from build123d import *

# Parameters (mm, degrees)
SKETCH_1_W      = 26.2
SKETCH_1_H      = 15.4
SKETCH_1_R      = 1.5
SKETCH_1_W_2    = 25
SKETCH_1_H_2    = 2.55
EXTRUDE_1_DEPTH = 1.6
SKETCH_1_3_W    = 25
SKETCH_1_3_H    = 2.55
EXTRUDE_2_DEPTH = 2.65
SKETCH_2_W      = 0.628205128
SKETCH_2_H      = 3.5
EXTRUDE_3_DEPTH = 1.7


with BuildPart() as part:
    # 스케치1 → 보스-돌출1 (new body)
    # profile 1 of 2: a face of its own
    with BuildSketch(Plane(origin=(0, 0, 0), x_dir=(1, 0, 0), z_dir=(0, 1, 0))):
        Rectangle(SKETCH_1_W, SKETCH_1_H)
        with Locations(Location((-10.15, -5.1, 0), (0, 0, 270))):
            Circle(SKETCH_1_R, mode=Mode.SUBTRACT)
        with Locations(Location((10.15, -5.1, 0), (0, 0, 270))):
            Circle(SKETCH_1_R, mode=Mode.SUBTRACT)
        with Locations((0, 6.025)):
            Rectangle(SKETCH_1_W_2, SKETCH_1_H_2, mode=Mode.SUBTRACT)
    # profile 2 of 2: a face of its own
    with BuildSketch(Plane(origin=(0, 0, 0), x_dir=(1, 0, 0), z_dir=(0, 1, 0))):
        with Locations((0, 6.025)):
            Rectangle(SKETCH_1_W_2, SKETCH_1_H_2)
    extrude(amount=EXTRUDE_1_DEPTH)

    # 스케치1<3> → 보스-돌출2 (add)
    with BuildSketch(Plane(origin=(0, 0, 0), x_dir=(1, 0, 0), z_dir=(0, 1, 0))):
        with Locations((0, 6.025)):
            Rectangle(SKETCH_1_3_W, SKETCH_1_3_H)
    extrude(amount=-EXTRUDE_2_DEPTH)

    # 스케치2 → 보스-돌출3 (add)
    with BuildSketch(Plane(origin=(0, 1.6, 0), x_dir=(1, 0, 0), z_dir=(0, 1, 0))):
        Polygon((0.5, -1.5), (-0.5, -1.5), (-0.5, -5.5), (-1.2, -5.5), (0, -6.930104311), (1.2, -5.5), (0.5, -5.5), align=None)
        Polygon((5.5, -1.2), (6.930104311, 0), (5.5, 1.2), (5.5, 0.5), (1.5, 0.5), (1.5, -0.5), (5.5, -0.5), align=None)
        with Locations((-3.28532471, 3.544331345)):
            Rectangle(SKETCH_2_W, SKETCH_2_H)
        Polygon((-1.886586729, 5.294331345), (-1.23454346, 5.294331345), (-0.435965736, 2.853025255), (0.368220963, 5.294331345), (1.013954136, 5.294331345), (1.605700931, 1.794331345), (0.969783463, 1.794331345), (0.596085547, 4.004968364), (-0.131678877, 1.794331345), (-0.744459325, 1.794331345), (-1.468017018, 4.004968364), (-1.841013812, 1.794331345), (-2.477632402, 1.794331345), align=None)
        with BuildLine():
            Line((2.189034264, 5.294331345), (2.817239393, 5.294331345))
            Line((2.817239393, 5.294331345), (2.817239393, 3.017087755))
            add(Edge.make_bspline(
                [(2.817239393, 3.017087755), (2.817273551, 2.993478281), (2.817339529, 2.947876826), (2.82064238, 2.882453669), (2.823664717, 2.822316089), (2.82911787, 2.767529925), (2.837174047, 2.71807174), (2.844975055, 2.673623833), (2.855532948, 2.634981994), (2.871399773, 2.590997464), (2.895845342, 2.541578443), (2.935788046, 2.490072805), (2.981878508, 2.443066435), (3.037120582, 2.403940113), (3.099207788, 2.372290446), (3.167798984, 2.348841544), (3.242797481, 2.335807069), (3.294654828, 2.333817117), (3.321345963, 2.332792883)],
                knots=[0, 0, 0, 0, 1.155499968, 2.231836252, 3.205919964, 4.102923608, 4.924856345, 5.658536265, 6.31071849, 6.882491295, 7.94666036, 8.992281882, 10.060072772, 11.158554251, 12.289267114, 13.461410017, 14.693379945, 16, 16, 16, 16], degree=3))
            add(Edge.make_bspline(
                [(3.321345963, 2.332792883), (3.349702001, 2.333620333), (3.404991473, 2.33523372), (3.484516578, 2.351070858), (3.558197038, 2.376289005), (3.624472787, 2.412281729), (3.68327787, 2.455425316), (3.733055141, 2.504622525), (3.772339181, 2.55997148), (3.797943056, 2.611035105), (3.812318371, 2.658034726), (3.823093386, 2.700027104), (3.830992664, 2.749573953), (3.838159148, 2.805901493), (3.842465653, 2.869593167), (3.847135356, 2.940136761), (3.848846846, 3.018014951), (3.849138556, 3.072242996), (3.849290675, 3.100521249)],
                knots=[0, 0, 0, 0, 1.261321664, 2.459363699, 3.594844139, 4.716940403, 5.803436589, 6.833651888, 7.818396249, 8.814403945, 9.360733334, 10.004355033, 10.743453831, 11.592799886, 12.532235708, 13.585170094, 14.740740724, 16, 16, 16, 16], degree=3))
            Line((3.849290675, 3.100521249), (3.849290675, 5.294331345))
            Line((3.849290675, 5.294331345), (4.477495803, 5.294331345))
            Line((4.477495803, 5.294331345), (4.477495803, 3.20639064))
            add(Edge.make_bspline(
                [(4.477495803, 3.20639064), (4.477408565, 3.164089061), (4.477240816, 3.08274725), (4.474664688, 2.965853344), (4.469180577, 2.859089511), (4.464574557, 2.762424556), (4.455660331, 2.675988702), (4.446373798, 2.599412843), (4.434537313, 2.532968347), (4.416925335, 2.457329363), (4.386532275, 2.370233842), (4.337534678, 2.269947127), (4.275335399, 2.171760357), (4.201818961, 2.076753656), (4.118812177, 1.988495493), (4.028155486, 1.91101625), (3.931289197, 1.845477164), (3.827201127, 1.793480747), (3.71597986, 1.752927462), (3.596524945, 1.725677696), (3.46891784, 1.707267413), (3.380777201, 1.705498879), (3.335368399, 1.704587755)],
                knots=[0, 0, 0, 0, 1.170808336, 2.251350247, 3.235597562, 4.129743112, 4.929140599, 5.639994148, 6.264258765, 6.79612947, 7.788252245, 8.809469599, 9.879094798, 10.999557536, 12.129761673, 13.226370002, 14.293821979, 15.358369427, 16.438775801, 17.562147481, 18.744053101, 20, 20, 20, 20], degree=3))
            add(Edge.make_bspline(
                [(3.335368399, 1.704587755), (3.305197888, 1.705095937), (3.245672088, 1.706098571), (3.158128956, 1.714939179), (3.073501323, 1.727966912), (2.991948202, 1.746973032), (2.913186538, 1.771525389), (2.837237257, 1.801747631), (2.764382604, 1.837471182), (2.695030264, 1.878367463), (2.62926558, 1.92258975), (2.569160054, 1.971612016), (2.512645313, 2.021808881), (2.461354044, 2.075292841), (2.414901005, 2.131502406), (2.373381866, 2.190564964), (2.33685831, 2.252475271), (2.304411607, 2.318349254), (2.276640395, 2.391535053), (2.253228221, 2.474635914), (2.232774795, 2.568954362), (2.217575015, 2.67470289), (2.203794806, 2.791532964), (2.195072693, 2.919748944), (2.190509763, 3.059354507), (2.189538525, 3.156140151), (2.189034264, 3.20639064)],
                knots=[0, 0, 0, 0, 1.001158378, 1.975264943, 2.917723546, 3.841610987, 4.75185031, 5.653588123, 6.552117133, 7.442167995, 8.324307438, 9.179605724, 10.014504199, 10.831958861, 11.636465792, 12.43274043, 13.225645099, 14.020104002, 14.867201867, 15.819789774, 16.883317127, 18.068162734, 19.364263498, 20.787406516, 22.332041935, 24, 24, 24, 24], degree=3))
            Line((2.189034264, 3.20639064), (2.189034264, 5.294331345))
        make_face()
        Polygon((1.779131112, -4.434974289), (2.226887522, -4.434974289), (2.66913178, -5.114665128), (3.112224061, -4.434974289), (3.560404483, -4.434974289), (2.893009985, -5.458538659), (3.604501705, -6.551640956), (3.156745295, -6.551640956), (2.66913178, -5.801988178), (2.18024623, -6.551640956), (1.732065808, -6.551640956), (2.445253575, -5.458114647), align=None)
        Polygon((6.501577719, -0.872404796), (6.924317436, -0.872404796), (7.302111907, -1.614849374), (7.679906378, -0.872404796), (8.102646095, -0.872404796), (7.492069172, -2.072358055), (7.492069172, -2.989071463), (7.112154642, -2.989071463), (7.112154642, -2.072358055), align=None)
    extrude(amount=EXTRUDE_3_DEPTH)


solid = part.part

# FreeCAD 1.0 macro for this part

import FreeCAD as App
import Part
import Sketcher

V = App.Vector
Q = App.Units.Quantity


def add_polygon(sketch, points):
    """Adds a closed chain of lines whose ends are joined by coincident constraints."""
    first, n = sketch.GeometryCount, len(points)
    for a, b in zip(points, points[1:] + points[:1]):
        sketch.addGeometry(Part.LineSegment(App.Vector(*a, 0), App.Vector(*b, 0)), False)
    for i in range(n):
        sketch.addConstraint(Sketcher.Constraint("Coincident", first + i, 2, first + (i + 1) % n, 1))

doc = App.newDocument("Part")
body = doc.addObject("PartDesign::Body", "Body")

# Sketch on XZ plane
sketch1 = body.newObject("Sketcher::SketchObject", "Sketch")
sketch1.AttachmentSupport = (doc.getObject("XZ_Plane"), [""])
sketch1.MapMode = "FlatFace"
add_polygon(sketch1, [(-13.1, -7.7), (-13.1, 7.7), (13.1, 7.7), (13.1, -7.7)])  # lines 0-3
sketch1.addGeometry(Part.Circle(V(-10.2, 5.1, 0), V(0, 0, 1), 1.5), False)  # 4
sketch1.addGeometry(Part.Circle(V(10.2, 5.1, 0), V(0, 0, 1), 1.5), False)  # 5
sketch1.addConstraint(Sketcher.Constraint("Vertical", 0))
sketch1.addConstraint(Sketcher.Constraint("Horizontal", 1))
sketch1.addConstraint(Sketcher.Constraint("Vertical", 2))
sketch1.addConstraint(Sketcher.Constraint("Horizontal", 3))
sketch1.addConstraint(Sketcher.Constraint("Equal", 4, 5))
sketch1.addConstraint(Sketcher.Constraint("Symmetric", 0, 2, 2, 2, -1, 1))
sketch1.addConstraint(Sketcher.Constraint("Symmetric", 4, 3, 5, 3, -2))
sketch1.addConstraint(Sketcher.Constraint("Diameter", 4, 3.0))
sketch1.addConstraint(Sketcher.Constraint("DistanceX", 1, 1, 1, 2, 26.2))
sketch1.addConstraint(Sketcher.Constraint("DistanceY", 0, 1, 0, 2, 15.4))
sketch1.addConstraint(Sketcher.Constraint("DistanceY", -1, 1, 4, 3, 5.1))
sketch1.addConstraint(Sketcher.Constraint("DistanceX", 4, 3, 5, 3, 20.3))
pad1 = body.newObject("PartDesign::Pad", "Pad")
pad1.Profile = sketch1
pad1.Length = 1.6
pad1.Reversed = True

# Sketch on XZ plane
sketch2 = body.newObject("Sketcher::SketchObject", "Sketch001")
sketch2.AttachmentSupport = (doc.getObject("XZ_Plane"), [""])
sketch2.MapMode = "FlatFace"
add_polygon(sketch2, [(-12.5, -7.3), (-12.5, -4.8), (12.5, -4.8), (12.5, -7.3)])  # lines 0-3
sketch2.addConstraint(Sketcher.Constraint("Vertical", 0))
sketch2.addConstraint(Sketcher.Constraint("Horizontal", 1))
sketch2.addConstraint(Sketcher.Constraint("Vertical", 2))
sketch2.addConstraint(Sketcher.Constraint("Horizontal", 3))
sketch2.addConstraint(Sketcher.Constraint("DistanceX", 1, 1, 1, 2, 25.0))
sketch2.addConstraint(Sketcher.Constraint("DistanceY", 0, 1, 0, 2, 2.55))
sketch2.addConstraint(Sketcher.Constraint("DistanceX", 0, 2, -1, 1, 12.5))
sketch2.addConstraint(Sketcher.Constraint("DistanceY", 2, 2, -1, 1, 7.3))
pad2 = body.newObject("PartDesign::Pad", "Pad001")
pad2.Profile = sketch2
pad2.Length = 2.65

# Sketch on XZ plane
sketch3 = body.newObject("Sketcher::SketchObject", "Sketch002")
sketch3.AttachmentSupport = (doc.getObject("XZ_Plane"), [""])
sketch3.MapMode = "FlatFace"
sketch3.AttachmentOffset = App.Placement(V(0, 0, -1.6), App.Rotation())
add_polygon(sketch3, [(0.5, 1.5), (-0.5, 1.5), (-0.5, 5.5), (-1.2, 5.5), (0, 6.930104), (1.2, 5.5), (0.5, 5.5)])  # lines 0-6
add_polygon(sketch3, [(5.5, 1.2), (6.930104, 0), (5.5, -1.2), (5.5, -0.5), (1.5, -0.5), (1.5, 0.5), (5.5, 0.5)])  # lines 7-13
add_polygon(sketch3, [(-3.599427, -5.294331), (-3.599427, -1.794331), (-2.971222, -1.794331), (-2.971222, -5.294331)])  # lines 14-17
add_polygon(sketch3, [(-1.234543, -5.294331), (-1.886587, -5.294331), (-2.477632, -1.794331), (-1.841014, -1.794331), (-1.468017, -4.004968), (-0.744459, -1.794331), (-0.131679, -1.794331), (0.596086, -4.004968), (0.969783, -1.794331), (1.605701, -1.794331), (1.013954, -5.294331), (0.368221, -5.294331), (-0.435966, -2.853025)])  # lines 18-30
sketch3.addGeometry(Part.LineSegment(V(2.817239, -5.294331, 0), V(2.189034, -5.294331, 0)), False)  # 31
sketch3.addGeometry(Part.LineSegment(V(2.189034, -5.294331, 0), V(2.189034, -3.206391, 0)), False)  # 32
sketch3.addGeometry(Part.BSplineCurve([V(3.335368, -1.704588, 0), V(3.305198, -1.705096, 0), V(3.245672, -1.706099, 0), V(3.158129, -1.714939, 0), V(3.073501, -1.727967, 0), V(2.991948, -1.746973, 0), V(2.913187, -1.771525, 0), V(2.837237, -1.801748, 0), V(2.764383, -1.837471, 0), V(2.69503, -1.878367, 0), V(2.629266, -1.92259, 0), V(2.56916, -1.971612, 0), V(2.512645, -2.021809, 0), V(2.461354, -2.075293, 0), V(2.414901, -2.131502, 0), V(2.373382, -2.190565, 0), V(2.336858, -2.252475, 0), V(2.304412, -2.318349, 0), V(2.27664, -2.391535, 0), V(2.253228, -2.474636, 0), V(2.232775, -2.568954, 0), V(2.217575, -2.674703, 0), V(2.203795, -2.791533, 0), V(2.195073, -2.919749, 0), V(2.19051, -3.059355, 0), V(2.189539, -3.15614, 0), V(2.189034, -3.206391, 0)], [4, 1, 1, 1, 1, 1, 1, 1, 1, 1, 1, 1, 1, 1, 1, 1, 1, 1, 1, 1, 1, 1, 1, 1, 4], [0, 1.001158378, 1.975264943, 2.917723546, 3.841610987, 4.75185031, 5.653588123, 6.552117133, 7.442167995, 8.324307438, 9.179605724, 10.014504199, 10.831958861, 11.636465792, 12.43274043, 13.225645099, 14.020104002, 14.867201867, 15.819789774, 16.883317127, 18.068162734, 19.364263498, 20.787406516, 22.332041935, 24], False, 3, [1, 1, 1, 1, 1, 1, 1, 1, 1, 1, 1, 1, 1, 1, 1, 1, 1, 1, 1, 1, 1, 1, 1, 1, 1, 1, 1], False), False)  # 33
sketch3.addGeometry(Part.BSplineCurve([V(4.477496, -3.206391, 0), V(4.477409, -3.164089, 0), V(4.477241, -3.082747, 0), V(4.474665, -2.965853, 0), V(4.469181, -2.85909, 0), V(4.464575, -2.762425, 0), V(4.45566, -2.675989, 0), V(4.446374, -2.599413, 0), V(4.434537, -2.532968, 0), V(4.416925, -2.457329, 0), V(4.386532, -2.370234, 0), V(4.337535, -2.269947, 0), V(4.275335, -2.17176, 0), V(4.201819, -2.076754, 0), V(4.118812, -1.988495, 0), V(4.028155, -1.911016, 0), V(3.931289, -1.845477, 0), V(3.827201, -1.793481, 0), V(3.71598, -1.752927, 0), V(3.596525, -1.725678, 0), V(3.468918, -1.707267, 0), V(3.380777, -1.705499, 0), V(3.335368, -1.704588, 0)], [4, 1, 1, 1, 1, 1, 1, 1, 1, 1, 1, 1, 1, 1, 1, 1, 1, 1, 1, 1, 4], [0, 1.170808336, 2.251350247, 3.235597562, 4.129743112, 4.929140599, 5.639994148, 6.264258765, 6.79612947, 7.788252245, 8.809469599, 9.879094798, 10.999557536, 12.129761673, 13.226370002, 14.293821979, 15.358369427, 16.438775801, 17.562147481, 18.744053101, 20], False, 3, [1, 1, 1, 1, 1, 1, 1, 1, 1, 1, 1, 1, 1, 1, 1, 1, 1, 1, 1, 1, 1, 1, 1], False), False)  # 34
sketch3.addGeometry(Part.LineSegment(V(4.477496, -3.206391, 0), V(4.477496, -5.294331, 0)), False)  # 35
sketch3.addGeometry(Part.LineSegment(V(4.477496, -5.294331, 0), V(3.849291, -5.294331, 0)), False)  # 36
sketch3.addGeometry(Part.LineSegment(V(3.849291, -5.294331, 0), V(3.849291, -3.100521, 0)), False)  # 37
sketch3.addGeometry(Part.BSplineCurve([V(3.321346, -2.332793, 0), V(3.349702, -2.33362, 0), V(3.404991, -2.335234, 0), V(3.484517, -2.351071, 0), V(3.558197, -2.376289, 0), V(3.624473, -2.412282, 0), V(3.683278, -2.455425, 0), V(3.733055, -2.504623, 0), V(3.772339, -2.559971, 0), V(3.797943, -2.611035, 0), V(3.812318, -2.658035, 0), V(3.823093, -2.700027, 0), V(3.830993, -2.749574, 0), V(3.838159, -2.805901, 0), V(3.842466, -2.869593, 0), V(3.847135, -2.940137, 0), V(3.848847, -3.018015, 0), V(3.849139, -3.072243, 0), V(3.849291, -3.100521, 0)], [4, 1, 1, 1, 1, 1, 1, 1, 1, 1, 1, 1, 1, 1, 1, 1, 4], [0, 1.261321664, 2.459363699, 3.594844139, 4.716940403, 5.803436589, 6.833651888, 7.818396249, 8.814403945, 9.360733334, 10.004355033, 10.743453831, 11.592799886, 12.532235708, 13.585170094, 14.740740724, 16], False, 3, [1, 1, 1, 1, 1, 1, 1, 1, 1, 1, 1, 1, 1, 1, 1, 1, 1, 1, 1], False), False)  # 38
sketch3.addGeometry(Part.BSplineCurve([V(2.817239, -3.017088, 0), V(2.817274, -2.993478, 0), V(2.81734, -2.947877, 0), V(2.820642, -2.882454, 0), V(2.823665, -2.822316, 0), V(2.829118, -2.76753, 0), V(2.837174, -2.718072, 0), V(2.844975, -2.673624, 0), V(2.855533, -2.634982, 0), V(2.8714, -2.590997, 0), V(2.895845, -2.541578, 0), V(2.935788, -2.490073, 0), V(2.981879, -2.443066, 0), V(3.037121, -2.40394, 0), V(3.099208, -2.37229, 0), V(3.167799, -2.348842, 0), V(3.242797, -2.335807, 0), V(3.294655, -2.333817, 0), V(3.321346, -2.332793, 0)], [4, 1, 1, 1, 1, 1, 1, 1, 1, 1, 1, 1, 1, 1, 1, 1, 4], [0, 1.155499968, 2.231836252, 3.205919964, 4.102923608, 4.924856345, 5.658536265, 6.31071849, 6.882491295, 7.94666036, 8.992281882, 10.060072772, 11.158554251, 12.289267114, 13.461410017, 14.693379945, 16], False, 3, [1, 1, 1, 1, 1, 1, 1, 1, 1, 1, 1, 1, 1, 1, 1, 1, 1, 1, 1], False), False)  # 39
sketch3.addGeometry(Part.LineSegment(V(2.817239, -3.017088, 0), V(2.817239, -5.294331, 0)), False)  # 40
add_polygon(sketch3, [(2.226888, 4.434974), (1.779131, 4.434974), (2.445254, 5.458115), (1.732066, 6.551641), (2.180246, 6.551641), (2.669132, 5.801988), (3.156745, 6.551641), (3.604502, 6.551641), (2.89301, 5.458539), (3.560404, 4.434974), (3.112224, 4.434974), (2.669132, 5.114665)])  # lines 41-52
add_polygon(sketch3, [(6.924317, 0.872405), (6.501578, 0.872405), (7.112155, 2.072358), (7.112155, 2.989071), (7.492069, 2.989071), (7.492069, 2.072358), (8.102646, 0.872405), (7.679906, 0.872405), (7.302112, 1.614849)])  # lines 53-61
sketch3.addConstraint(Sketcher.Constraint("Block", 33))
sketch3.addConstraint(Sketcher.Constraint("Block", 34))
sketch3.addConstraint(Sketcher.Constraint("Block", 38))
sketch3.addConstraint(Sketcher.Constraint("Block", 39))
sketch3.addConstraint(Sketcher.Constraint("Coincident", 31, 2, 32, 1))
sketch3.addConstraint(Sketcher.Constraint("Coincident", 32, 2, 33, 2))
sketch3.addConstraint(Sketcher.Constraint("Coincident", 34, 1, 35, 1))
sketch3.addConstraint(Sketcher.Constraint("Coincident", 35, 2, 36, 1))
sketch3.addConstraint(Sketcher.Constraint("Coincident", 36, 2, 37, 1))
sketch3.addConstraint(Sketcher.Constraint("Coincident", 37, 2, 38, 2))
sketch3.addConstraint(Sketcher.Constraint("Coincident", 39, 1, 40, 1))
sketch3.addConstraint(Sketcher.Constraint("Coincident", 40, 2, 31, 1))
sketch3.addConstraint(Sketcher.Constraint("Horizontal", 0))
sketch3.addConstraint(Sketcher.Constraint("Vertical", 1))
sketch3.addConstraint(Sketcher.Constraint("Horizontal", 2))
sketch3.addConstraint(Sketcher.Constraint("Horizontal", 5))
sketch3.addConstraint(Sketcher.Constraint("Vertical", 6))
sketch3.addConstraint(Sketcher.Constraint("Vertical", 9))
sketch3.addConstraint(Sketcher.Constraint("Horizontal", 10))
sketch3.addConstraint(Sketcher.Constraint("Vertical", 11))
sketch3.addConstraint(Sketcher.Constraint("Horizontal", 12))
sketch3.addConstraint(Sketcher.Constraint("Vertical", 13))
sketch3.addConstraint(Sketcher.Constraint("Vertical", 14))
sketch3.addConstraint(Sketcher.Constraint("Horizontal", 15))
sketch3.addConstraint(Sketcher.Constraint("Vertical", 16))
sketch3.addConstraint(Sketcher.Constraint("Horizontal", 17))
sketch3.addConstraint(Sketcher.Constraint("Horizontal", 18))
sketch3.addConstraint(Sketcher.Constraint("Horizontal", 20))
sketch3.addConstraint(Sketcher.Constraint("Horizontal", 23))
sketch3.addConstraint(Sketcher.Constraint("Horizontal", 26))
sketch3.addConstraint(Sketcher.Constraint("Horizontal", 28))
sketch3.addConstraint(Sketcher.Constraint("Horizontal", 31))
sketch3.addConstraint(Sketcher.Constraint("Vertical", 32))
sketch3.addConstraint(Sketcher.Constraint("Vertical", 35))
sketch3.addConstraint(Sketcher.Constraint("Horizontal", 36))
sketch3.addConstraint(Sketcher.Constraint("Vertical", 37))
sketch3.addConstraint(Sketcher.Constraint("Vertical", 40))
sketch3.addConstraint(Sketcher.Constraint("Horizontal", 41))
sketch3.addConstraint(Sketcher.Constraint("Horizontal", 44))
sketch3.addConstraint(Sketcher.Constraint("Horizontal", 47))
sketch3.addConstraint(Sketcher.Constraint("Horizontal", 50))
sketch3.addConstraint(Sketcher.Constraint("Horizontal", 53))
sketch3.addConstraint(Sketcher.Constraint("Vertical", 55))
sketch3.addConstraint(Sketcher.Constraint("Horizontal", 56))
sketch3.addConstraint(Sketcher.Constraint("Vertical", 57))
sketch3.addConstraint(Sketcher.Constraint("Horizontal", 59))
sketch3.addConstraint(Sketcher.Constraint("Symmetric", 2, 2, 4, 2, -2))
sketch3.addConstraint(Sketcher.Constraint("Symmetric", 9, 2, 12, 2, -1))
sketch3.addConstraint(Sketcher.Constraint("PointOnObject", 3, 2, -2))
sketch3.addConstraint(Sketcher.Constraint("PointOnObject", 7, 2, -1))
sketch3.addConstraint(Sketcher.Constraint("Perpendicular", 3, 7))
sketch3.addConstraint(Sketcher.Constraint("Perpendicular", 4, 8))
sketch3.addConstraint(Sketcher.Constraint("Horizontal", 17, 2, 18, 2))
sketch3.addConstraint(Sketcher.Constraint("Horizontal", 15, 2, 19, 2))
sketch3.addConstraint(Sketcher.Constraint("Horizontal", 20, 2, 22, 2))
sketch3.addConstraint(Sketcher.Constraint("Horizontal", 21, 2, 24, 2))
sketch3.addConstraint(Sketcher.Constraint("Horizontal", 23, 2, 25, 2))
sketch3.addConstraint(Sketcher.Constraint("Horizontal", 18, 2, 27, 2))
sketch3.addConstraint(Sketcher.Constraint("Horizontal", 30, 2, 31, 2))
sketch3.addConstraint(Sketcher.Constraint("Horizontal", 31, 2, 35, 2))
sketch3.addConstraint(Sketcher.Constraint("Horizontal", 44, 2, 46, 2))
sketch3.addConstraint(Sketcher.Constraint("Horizontal", 41, 2, 49, 2))
sketch3.addConstraint(Sketcher.Constraint("Horizontal", 54, 2, 57, 2))
sketch3.addConstraint(Sketcher.Constraint("Horizontal", 53, 2, 58, 2))
sketch3.addConstraint(Sketcher.Constraint("Vertical", 45, 2, 51, 2))
sketch3.addConstraint(Sketcher.Constraint("Equal", 2, 5))
sketch3.addConstraint(Sketcher.Constraint("Equal", 17, 31))
sketch3.addConstraint(Sketcher.Constraint("Equal", 41, 47))
sketch3.addConstraint(Sketcher.Constraint("Equal", 44, 50))
sketch3.addConstraint(Sketcher.Constraint("Equal", 53, 59))
sketch3.addConstraint(Sketcher.Constraint("Equal", 12, 1))
sketch3.addConstraint(Sketcher.Constraint("Equal", 5, 9))
sketch3.addConstraint(Sketcher.Constraint("Equal", 0, 11))
sketch3.addConstraint(Sketcher.Constraint("Equal", 54, 58))
sketch3.addConstraint(Sketcher.Constraint("Equal", 60, 61))
sketch3.addConstraint(Sketcher.Constraint("DistanceX", 0, 2, 0, 1, 1.0))
sketch3.addConstraint(Sketcher.Constraint("DistanceX", 10, 2, 10, 1, 4.0))
sketch3.addConstraint(Sketcher.Constraint("Angle", 3, Q("50 deg")))
sketch3.addConstraint(Sketcher.Constraint("DistanceX", 2, 2, 2, 1, 0.7))
sketch3.addConstraint(Sketcher.Constraint("DistanceY", 14, 1, 14, 2, 3.5))
sketch3.addConstraint(Sketcher.Constraint("DistanceX", 6, 2, 8, 2, 5.0))
sketch3.addConstraint(Sketcher.Constraint("DistanceY", 9, 2, 6, 2, 2.0))
sketch3.addConstraint(Sketcher.Constraint("DistanceX", 41, 2, 45, 2, 0.890001))
sketch3.addConstraint(Sketcher.Constraint("Distance", 25, 2.242))
sketch3.addConstraint(Sketcher.Constraint("Distance", 30, 2.568599))
sketch3.addConstraint(Sketcher.Constraint("Distance", 52, 0.8109))
sketch3.addConstraint(Sketcher.Constraint("DistanceX", 20, 1, 20, 2, 0.636619))
sketch3.addConstraint(Sketcher.Constraint("DistanceX", 23, 1, 23, 2, 0.61278))
sketch3.addConstraint(Sketcher.Constraint("DistanceX", 44, 1, 44, 2, 0.44818))
sketch3.addConstraint(Sketcher.Constraint("DistanceX", 53, 2, 53, 1, 0.42274))
sketch3.addConstraint(Sketcher.Constraint("DistanceY", 32, 1, 32, 2, 2.087941))
sketch3.addConstraint(Sketcher.Constraint("DistanceX", -1, 1, 26, 2, 1.605701))
sketch3.addConstraint(Sketcher.Constraint("DistanceX", -1, 1, 47, 2, 3.604502))
sketch3.addConstraint(Sketcher.Constraint("DistanceX", 20, 2, 24, 2, 2.437099))
sketch3.addConstraint(Sketcher.Constraint("DistanceX", 44, 2, 46, 2, 0.976499))
sketch3.addConstraint(Sketcher.Constraint("Distance", 24, 2.32735))
sketch3.addConstraint(Sketcher.Constraint("Distance", 27, 3.549671))
sketch3.addConstraint(Sketcher.Constraint("Distance", 29, 2.570349))
sketch3.addConstraint(Sketcher.Constraint("Distance", 43, 1.305541))
sketch3.addConstraint(Sketcher.Constraint("Distance", 45, 0.89498))
sketch3.addConstraint(Sketcher.Constraint("Distance", 48, 1.30426))
sketch3.addConstraint(Sketcher.Constraint("Distance", 60, 0.833038))
sketch3.addConstraint(Sketcher.Constraint("DistanceX", 18, 2, 18, 1, 0.652043))
sketch3.addConstraint(Sketcher.Constraint("DistanceX", 26, 1, 26, 2, 0.635917))
sketch3.addConstraint(Sketcher.Constraint("DistanceX", 28, 2, 28, 1, 0.645733))
sketch3.addConstraint(Sketcher.Constraint("DistanceX", 41, 2, 41, 1, 0.447756))
sketch3.addConstraint(Sketcher.Constraint("DistanceX", 56, 1, 56, 2, 0.379915))
sketch3.addConstraint(Sketcher.Constraint("DistanceY", 55, 1, 55, 2, 0.916713))
sketch3.addConstraint(Sketcher.Constraint("DistanceY", 21, 2, -1, 1, 4.004968))
sketch3.addConstraint(Sketcher.Constraint("DistanceX", -1, 1, 41, 2, 1.779131))
sketch3.addConstraint(Sketcher.Constraint("DistanceY", -1, 1, 43, 2, 6.551641))
sketch3.addConstraint(Sketcher.Constraint("DistanceX", -1, 1, 48, 2, 2.89301))
sketch3.addConstraint(Sketcher.Constraint("DistanceY", -1, 1, 54, 2, 2.072358))
sketch3.addConstraint(Sketcher.Constraint("DistanceX", -1, 1, 56, 2, 7.492069))
sketch3.addConstraint(Sketcher.Constraint("DistanceY", -1, 1, 60, 2, 1.614849))
sketch3.addConstraint(Sketcher.Constraint("DistanceX", 17, 2, 18, 2, 1.712841))
sketch3.addConstraint(Sketcher.Constraint("DistanceX", 15, 2, 19, 2, 0.49359))
sketch3.addConstraint(Sketcher.Constraint("DistanceX", 18, 2, 21, 2, 0.41857))
sketch3.addConstraint(Sketcher.Constraint("DistanceY", 41, 2, 3, 2, 2.49513))
sketch3.addConstraint(Sketcher.Constraint("DistanceY", 41, 2, 42, 2, 1.02314))
sketch3.addConstraint(Sketcher.Constraint("DistanceX", 42, 2, 49, 2, 1.115151))
sketch3.addConstraint(Sketcher.Constraint("DistanceX", 53, 2, 56, 2, 0.990491))
pad3 = body.newObject("PartDesign::Pad", "Pad002")
pad3.Profile = sketch3
pad3.Length = 1.7
pad3.Reversed = True

doc.recompute()
